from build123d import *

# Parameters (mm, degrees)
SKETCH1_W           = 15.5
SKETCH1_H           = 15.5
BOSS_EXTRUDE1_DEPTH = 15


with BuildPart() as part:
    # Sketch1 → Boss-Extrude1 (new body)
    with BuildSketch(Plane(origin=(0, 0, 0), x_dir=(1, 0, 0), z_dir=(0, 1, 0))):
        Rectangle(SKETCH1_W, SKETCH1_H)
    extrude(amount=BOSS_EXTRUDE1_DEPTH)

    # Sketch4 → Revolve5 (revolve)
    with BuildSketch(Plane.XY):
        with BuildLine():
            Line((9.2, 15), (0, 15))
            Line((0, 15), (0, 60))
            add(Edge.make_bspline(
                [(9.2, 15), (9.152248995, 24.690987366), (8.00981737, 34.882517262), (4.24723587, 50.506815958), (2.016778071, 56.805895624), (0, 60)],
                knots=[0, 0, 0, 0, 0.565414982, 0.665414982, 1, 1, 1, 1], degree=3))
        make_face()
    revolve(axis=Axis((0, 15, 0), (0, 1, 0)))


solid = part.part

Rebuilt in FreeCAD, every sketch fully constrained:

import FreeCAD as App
import Part
import Sketcher
Q = App.Units.Quantity

doc = App.newDocument("Part")
body = doc.addObject("PartDesign::Body", "Body")

# Sketch on XZ plane
sketch1 = body.newObject("Sketcher::SketchObject", "Sketch")
sketch1.AttachmentSupport = (doc.getObject("XZ_Plane"), [""])
sketch1.MapMode = "FlatFace"
sketch1.addGeometry(Part.LineSegment(App.Vector(-8, -8, 0), App.Vector(-8, 8, 0)), False)
sketch1.addGeometry(Part.LineSegment(App.Vector(-8, 8, 0), App.Vector(8, 8, 0)), False)
sketch1.addGeometry(Part.LineSegment(App.Vector(8, 8, 0), App.Vector(8, -8, 0)), False)
sketch1.addGeometry(Part.LineSegment(App.Vector(8, -8, 0), App.Vector(-8, -8, 0)), False)
sketch1.addConstraint(Sketcher.Constraint("Coincident", 0, 2, 1, 1))
sketch1.addConstraint(Sketcher.Constraint("Coincident", 1, 2, 2, 1))
sketch1.addConstraint(Sketcher.Constraint("Coincident", 2, 2, 3, 1))
sketch1.addConstraint(Sketcher.Constraint("Coincident", 3, 2, 0, 1))
sketch1.addConstraint(Sketcher.Constraint("Vertical", 0))
sketch1.addConstraint(Sketcher.Constraint("Horizontal", 1))
sketch1.addConstraint(Sketcher.Constraint("Vertical", 2))
sketch1.addConstraint(Sketcher.Constraint("Horizontal", 3))
sketch1.addConstraint(Sketcher.Constraint("Symmetric", 0, 2, 2, 2, -1, 1))
sketch1.addConstraint(Sketcher.Constraint("Equal", 3, 0))
sketch1.addConstraint(Sketcher.Constraint("DistanceX", 1, 1, 1, 2, Q("15.5 mm")))
pad1 = body.newObject("PartDesign::Pad", "Pad")
pad1.Profile = sketch1
pad1.Length = 15
pad1.Reversed = True

# Sketch on XY plane
sketch2 = body.newObject("Sketcher::SketchObject", "Sketch001")
sketch2.AttachmentSupport = (doc.getObject("XY_Plane"), [""])
sketch2.MapMode = "FlatFace"
sketch2.addGeometry(Part.LineSegment(App.Vector(0, 15, 0), App.Vector(9.2, 15, 0)), False)
sketch2.addGeometry(Part.BSplineCurve([App.Vector(9.2, 15, 0), App.Vector(9.152249, 24.690987, 0), App.Vector(8.009817, 34.882517, 0), App.Vector(4.247236, 50.506816, 0), App.Vector(2.016778, 56.805896, 0), App.Vector(0, 60, 0)], [4, 1, 1, 4], [0, 0.565414982, 0.665414982, 1], False, 3, [1, 1, 1, 1, 1, 1], False), False)
sketch2.addGeometry(Part.LineSegment(App.Vector(0, 60, 0), App.Vector(0, 15, 0)), False)
sketch2.addConstraint(Sketcher.Constraint("Block", 1))
sketch2.addConstraint(Sketcher.Constraint("Coincident", 0, 2, 1, 1))
sketch2.addConstraint(Sketcher.Constraint("Coincident", 1, 2, 2, 1))
sketch2.addConstraint(Sketcher.Constraint("Coincident", 2, 2, 0, 1))
sketch2.addConstraint(Sketcher.Constraint("Horizontal", 0))
sketch2.addConstraint(Sketcher.Constraint("Vertical", 2))
revolution = body.newObject("PartDesign::Revolution", "Revolution")
revolution.Profile = sketch2
revolution.ReferenceAxis = (sketch2, ["V_Axis"])
revolution.Angle = 360

doc.recompute()
